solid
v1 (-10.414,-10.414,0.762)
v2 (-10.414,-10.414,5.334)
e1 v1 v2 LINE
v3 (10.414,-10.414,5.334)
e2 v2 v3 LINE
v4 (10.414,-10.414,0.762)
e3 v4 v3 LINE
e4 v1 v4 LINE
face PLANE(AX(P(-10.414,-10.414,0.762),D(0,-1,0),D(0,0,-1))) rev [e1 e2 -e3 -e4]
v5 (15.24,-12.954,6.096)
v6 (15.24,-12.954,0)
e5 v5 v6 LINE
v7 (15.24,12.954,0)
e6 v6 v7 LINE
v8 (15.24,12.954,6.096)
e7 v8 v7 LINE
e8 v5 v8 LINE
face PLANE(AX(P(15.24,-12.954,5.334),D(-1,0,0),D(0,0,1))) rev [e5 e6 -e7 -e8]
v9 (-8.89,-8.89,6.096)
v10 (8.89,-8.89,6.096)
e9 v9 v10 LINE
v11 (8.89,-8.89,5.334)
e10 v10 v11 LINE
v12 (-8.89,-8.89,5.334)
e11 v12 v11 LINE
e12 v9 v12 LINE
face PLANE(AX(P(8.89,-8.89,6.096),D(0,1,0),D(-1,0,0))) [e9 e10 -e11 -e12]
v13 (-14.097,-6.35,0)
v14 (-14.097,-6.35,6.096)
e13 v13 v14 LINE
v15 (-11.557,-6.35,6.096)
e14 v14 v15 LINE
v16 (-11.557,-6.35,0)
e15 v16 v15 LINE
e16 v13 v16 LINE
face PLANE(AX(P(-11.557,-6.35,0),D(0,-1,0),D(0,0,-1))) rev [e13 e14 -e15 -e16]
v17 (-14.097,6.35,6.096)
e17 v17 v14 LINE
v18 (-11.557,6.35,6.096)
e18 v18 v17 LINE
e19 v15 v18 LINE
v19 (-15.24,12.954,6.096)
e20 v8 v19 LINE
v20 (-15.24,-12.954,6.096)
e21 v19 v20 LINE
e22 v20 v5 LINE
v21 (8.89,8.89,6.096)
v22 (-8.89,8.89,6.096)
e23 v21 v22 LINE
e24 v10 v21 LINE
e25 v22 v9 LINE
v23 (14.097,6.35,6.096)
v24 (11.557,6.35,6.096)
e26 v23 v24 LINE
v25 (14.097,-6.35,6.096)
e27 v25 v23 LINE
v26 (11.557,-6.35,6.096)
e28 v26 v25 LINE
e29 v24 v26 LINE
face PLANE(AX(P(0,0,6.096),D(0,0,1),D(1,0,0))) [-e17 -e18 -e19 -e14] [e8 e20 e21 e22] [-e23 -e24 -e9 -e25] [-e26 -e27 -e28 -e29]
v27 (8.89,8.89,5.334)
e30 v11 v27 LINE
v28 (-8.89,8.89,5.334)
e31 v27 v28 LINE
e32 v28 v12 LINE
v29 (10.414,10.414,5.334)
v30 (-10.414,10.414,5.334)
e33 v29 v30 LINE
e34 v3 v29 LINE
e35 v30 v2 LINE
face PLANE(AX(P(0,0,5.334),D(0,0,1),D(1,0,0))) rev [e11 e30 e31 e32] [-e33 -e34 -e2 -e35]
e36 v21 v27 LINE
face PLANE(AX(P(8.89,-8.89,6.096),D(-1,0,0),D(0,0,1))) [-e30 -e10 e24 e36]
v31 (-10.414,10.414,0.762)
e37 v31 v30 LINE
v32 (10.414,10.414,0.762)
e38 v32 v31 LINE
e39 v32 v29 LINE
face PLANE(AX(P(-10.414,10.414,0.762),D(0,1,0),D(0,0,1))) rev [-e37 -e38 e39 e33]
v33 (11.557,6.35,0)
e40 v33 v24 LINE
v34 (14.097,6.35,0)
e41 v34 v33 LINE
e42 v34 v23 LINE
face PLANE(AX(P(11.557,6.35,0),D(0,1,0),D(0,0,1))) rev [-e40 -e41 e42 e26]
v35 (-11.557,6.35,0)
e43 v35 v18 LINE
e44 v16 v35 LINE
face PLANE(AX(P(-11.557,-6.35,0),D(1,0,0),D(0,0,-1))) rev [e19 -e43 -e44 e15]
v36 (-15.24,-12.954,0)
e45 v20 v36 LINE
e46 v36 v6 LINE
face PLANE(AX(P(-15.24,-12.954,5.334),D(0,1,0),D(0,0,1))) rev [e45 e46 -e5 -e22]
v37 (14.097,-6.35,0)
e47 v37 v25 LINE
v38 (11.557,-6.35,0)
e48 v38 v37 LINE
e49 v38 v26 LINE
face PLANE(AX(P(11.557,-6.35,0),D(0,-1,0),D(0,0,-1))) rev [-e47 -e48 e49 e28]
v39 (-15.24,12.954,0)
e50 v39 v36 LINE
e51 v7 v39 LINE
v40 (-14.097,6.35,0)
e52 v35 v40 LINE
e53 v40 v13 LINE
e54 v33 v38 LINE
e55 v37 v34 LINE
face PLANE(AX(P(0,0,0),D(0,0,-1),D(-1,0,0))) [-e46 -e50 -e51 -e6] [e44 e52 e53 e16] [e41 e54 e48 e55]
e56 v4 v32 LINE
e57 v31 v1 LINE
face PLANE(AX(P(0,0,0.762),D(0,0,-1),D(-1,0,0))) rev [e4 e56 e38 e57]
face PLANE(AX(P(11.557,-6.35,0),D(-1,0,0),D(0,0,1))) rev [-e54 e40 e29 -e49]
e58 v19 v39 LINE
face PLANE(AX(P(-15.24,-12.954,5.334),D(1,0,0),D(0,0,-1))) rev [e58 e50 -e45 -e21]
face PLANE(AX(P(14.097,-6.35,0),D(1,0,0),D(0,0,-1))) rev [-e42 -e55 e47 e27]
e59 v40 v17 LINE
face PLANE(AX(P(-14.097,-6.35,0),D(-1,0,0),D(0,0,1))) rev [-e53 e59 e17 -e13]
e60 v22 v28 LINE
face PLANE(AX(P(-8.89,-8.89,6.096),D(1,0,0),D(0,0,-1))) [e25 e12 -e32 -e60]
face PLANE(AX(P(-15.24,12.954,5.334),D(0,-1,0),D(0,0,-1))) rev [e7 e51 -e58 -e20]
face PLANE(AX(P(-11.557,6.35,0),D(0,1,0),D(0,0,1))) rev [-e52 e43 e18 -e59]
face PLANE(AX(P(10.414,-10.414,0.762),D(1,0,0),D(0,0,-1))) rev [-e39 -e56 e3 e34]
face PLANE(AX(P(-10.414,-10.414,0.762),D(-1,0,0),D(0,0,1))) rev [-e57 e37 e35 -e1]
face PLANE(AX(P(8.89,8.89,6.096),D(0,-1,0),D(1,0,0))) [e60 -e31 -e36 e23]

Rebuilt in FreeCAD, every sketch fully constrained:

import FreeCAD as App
import Part
import Sketcher
Q = App.Units.Quantity


def add_polygon(sketch, points):
    """Adds a closed chain of lines whose ends are joined by coincident constraints."""
    first, n = sketch.GeometryCount, len(points)
    for a, b in zip(points, points[1:] + points[:1]):
        sketch.addGeometry(Part.LineSegment(App.Vector(*a, 0), App.Vector(*b, 0)), False)
    for i in range(n):
        sketch.addConstraint(Sketcher.Constraint("Coincident", first + i, 2, first + (i + 1) % n, 1))

doc = App.newDocument("Part")
params = doc.addObject("Spreadsheet::Sheet", "Params")
for row, (alias, value) in enumerate([
    ("sketch1_width", "1.2 in"),
    ("sketch1_height", "1.02 in"),
    ("pad1_length", "0.21 in"),
    ("sketch2_width", "0.82 in"),
    ("pocket1_length", "0.18 in"),
    ("sketch3_width", "1.2 in"),
    ("sketch3_width2", "0.7 in"),
    ("sketch3_height", "1.02 in"),
    ("pad2_length", "0.03 in"),
    ("sketch4_width", "0.1 in"),
    ("sketch4_height", "0.5 in"),
], start=1):
    params.set(f"A{row}", alias)
    params.set(f"B{row}", "=" + value)
    params.setAlias(f"B{row}", alias)

body = doc.addObject("PartDesign::Body", "Body")

sketch1 = doc.addObject("Sketcher::SketchObject", "Sketch")
body.addObject(sketch1)
sketch1.AttachmentSupport = (doc.XY_Plane, [""])
sketch1.MapMode = "FlatFace"
add_polygon(sketch1, [(-15, 13), (-15, -13), (15, -13), (15, 13)])
sketch1.addConstraint(Sketcher.Constraint("Vertical", 0))
sketch1.addConstraint(Sketcher.Constraint("Horizontal", 1))
sketch1.addConstraint(Sketcher.Constraint("Vertical", 2))
sketch1.addConstraint(Sketcher.Constraint("Horizontal", 3))
sketch1.addConstraint(Sketcher.Constraint("Symmetric", 0, 2, 2, 2, -1, 1))
sketch1.addConstraint(Sketcher.Constraint("DistanceX", 1, 1, 1, 2, Q("1.2 in")))
sketch1.addConstraint(Sketcher.Constraint("DistanceY", 0, 2, 0, 1, Q("1.02 in")))
sketch1.setExpression("Constraints[9]", "Params.sketch1_width")
sketch1.setExpression("Constraints[10]", "Params.sketch1_height")
pad1 = doc.addObject("PartDesign::Pad", "Pad")
body.addObject(pad1)
pad1.Profile = sketch1
pad1.setExpression("Length", "Params.pad1_length")

sketch2 = doc.addObject("Sketcher::SketchObject", "Sketch001")
body.addObject(sketch2)
sketch2.AttachmentSupport = (doc.XY_Plane, [""])
sketch2.MapMode = "FlatFace"
sketch2.AttachmentOffset = App.Placement(App.Vector(0, 0, 0.21 * 25.4), App.Rotation())
add_polygon(sketch2, [(-10, 10), (-10, -10), (10, -10), (10, 10)])
sketch2.addConstraint(Sketcher.Constraint("Vertical", 0))
sketch2.addConstraint(Sketcher.Constraint("Horizontal", 1))
sketch2.addConstraint(Sketcher.Constraint("Vertical", 2))
sketch2.addConstraint(Sketcher.Constraint("Horizontal", 3))
sketch2.addConstraint(Sketcher.Constraint("Symmetric", 0, 2, 2, 2, -1, 1))
sketch2.addConstraint(Sketcher.Constraint("Equal", 3, 0))
sketch2.addConstraint(Sketcher.Constraint("DistanceX", 1, 1, 1, 2, Q("0.82 in")))
sketch2.setExpression("Constraints[10]", "Params.sketch2_width")
pocket1 = doc.addObject("PartDesign::Pocket", "Pocket")
body.addObject(pocket1)
pocket1.Profile = sketch2
pocket1.setExpression("Length", "Params.pocket1_length")

sketch3 = doc.addObject("Sketcher::SketchObject", "Sketch002")
body.addObject(sketch3)
sketch3.AttachmentSupport = (doc.XY_Plane, [""])
sketch3.MapMode = "FlatFace"
sketch3.AttachmentOffset = App.Placement(App.Vector(0, 0, 0.21 * 25.4), App.Rotation())
add_polygon(sketch3, [(-15, 13), (-15, -13), (15, -13), (15, 13)])
add_polygon(sketch3, [(9, -9), (-9, -9), (-9, 9), (9, 9)])
sketch3.addConstraint(Sketcher.Constraint("Vertical", 0))
sketch3.addConstraint(Sketcher.Constraint("Horizontal", 1))
sketch3.addConstraint(Sketcher.Constraint("Vertical", 2))
sketch3.addConstraint(Sketcher.Constraint("Horizontal", 3))
sketch3.addConstraint(Sketcher.Constraint("Horizontal", 4))
sketch3.addConstraint(Sketcher.Constraint("Vertical", 5))
sketch3.addConstraint(Sketcher.Constraint("Horizontal", 6))
sketch3.addConstraint(Sketcher.Constraint("Vertical", 7))
sketch3.addConstraint(Sketcher.Constraint("Symmetric", 0, 2, 2, 2, -1, 1))
sketch3.addConstraint(Sketcher.Constraint("Symmetric", 4, 2, 6, 2, -1, 1))
sketch3.addConstraint(Sketcher.Constraint("Equal", 6, 5))
sketch3.addConstraint(Sketcher.Constraint("DistanceX", 1, 1, 1, 2, Q("1.2 in")))
sketch3.addConstraint(Sketcher.Constraint("DistanceX", 4, 2, 4, 1, Q("0.7 in")))
sketch3.addConstraint(Sketcher.Constraint("DistanceY", 0, 2, 0, 1, Q("1.02 in")))
sketch3.setExpression("Constraints[19]", "Params.sketch3_width")
sketch3.setExpression("Constraints[20]", "Params.sketch3_width2")
sketch3.setExpression("Constraints[21]", "Params.sketch3_height")
pad2 = doc.addObject("PartDesign::Pad", "Pad001")
body.addObject(pad2)
pad2.Profile = sketch3
pad2.setExpression("Length", "Params.pad2_length")

sketch4 = doc.addObject("Sketcher::SketchObject", "Sketch003")
body.addObject(sketch4)
sketch4.AttachmentSupport = (doc.XY_Plane, [""])
sketch4.MapMode = "FlatFace"
sketch4.AttachmentOffset = App.Placement(App.Vector(0, 0, 0.24 * 25.4), App.Rotation())
add_polygon(sketch4, [(-14.1, 6.3), (-14.1, -6.3), (-11.6, -6.3), (-11.6, 6.3)])
add_polygon(sketch4, [(11.6, 6.3), (11.6, -6.3), (14.1, -6.3), (14.1, 6.3)])
sketch4.addConstraint(Sketcher.Constraint("Vertical", 0))
sketch4.addConstraint(Sketcher.Constraint("Horizontal", 1))
sketch4.addConstraint(Sketcher.Constraint("Vertical", 2))
sketch4.addConstraint(Sketcher.Constraint("Horizontal", 3))
sketch4.addConstraint(Sketcher.Constraint("Vertical", 4))
sketch4.addConstraint(Sketcher.Constraint("Horizontal", 5))
sketch4.addConstraint(Sketcher.Constraint("Vertical", 6))
sketch4.addConstraint(Sketcher.Constraint("Horizontal", 7))
sketch4.addConstraint(Sketcher.Constraint("Symmetric", 2, 2, 4, 2, -1, 1))
sketch4.addConstraint(Sketcher.Constraint("Symmetric", 0, 2, 6, 2, -1, 1))
sketch4.addConstraint(Sketcher.Constraint("Horizontal", 1, 2, 4, 2))
sketch4.addConstraint(Sketcher.Constraint("DistanceX", 1, 1, 1, 2, Q("0.1 in")))
sketch4.addConstraint(Sketcher.Constraint("DistanceY", 0, 2, 0, 1, Q("0.5 in")))
sketch4.addConstraint(Sketcher.Constraint("DistanceX", 1, 2, 4, 2, Q("0.91 in")))
sketch4.setExpression("Constraints[19]", "Params.sketch4_width")
sketch4.setExpression("Constraints[20]", "Params.sketch4_height")
pocket2 = doc.addObject("PartDesign::Pocket", "Pocket001")
body.addObject(pocket2)
pocket2.Profile = sketch4
pocket2.Type = "ThroughAll"

doc.recompute()
